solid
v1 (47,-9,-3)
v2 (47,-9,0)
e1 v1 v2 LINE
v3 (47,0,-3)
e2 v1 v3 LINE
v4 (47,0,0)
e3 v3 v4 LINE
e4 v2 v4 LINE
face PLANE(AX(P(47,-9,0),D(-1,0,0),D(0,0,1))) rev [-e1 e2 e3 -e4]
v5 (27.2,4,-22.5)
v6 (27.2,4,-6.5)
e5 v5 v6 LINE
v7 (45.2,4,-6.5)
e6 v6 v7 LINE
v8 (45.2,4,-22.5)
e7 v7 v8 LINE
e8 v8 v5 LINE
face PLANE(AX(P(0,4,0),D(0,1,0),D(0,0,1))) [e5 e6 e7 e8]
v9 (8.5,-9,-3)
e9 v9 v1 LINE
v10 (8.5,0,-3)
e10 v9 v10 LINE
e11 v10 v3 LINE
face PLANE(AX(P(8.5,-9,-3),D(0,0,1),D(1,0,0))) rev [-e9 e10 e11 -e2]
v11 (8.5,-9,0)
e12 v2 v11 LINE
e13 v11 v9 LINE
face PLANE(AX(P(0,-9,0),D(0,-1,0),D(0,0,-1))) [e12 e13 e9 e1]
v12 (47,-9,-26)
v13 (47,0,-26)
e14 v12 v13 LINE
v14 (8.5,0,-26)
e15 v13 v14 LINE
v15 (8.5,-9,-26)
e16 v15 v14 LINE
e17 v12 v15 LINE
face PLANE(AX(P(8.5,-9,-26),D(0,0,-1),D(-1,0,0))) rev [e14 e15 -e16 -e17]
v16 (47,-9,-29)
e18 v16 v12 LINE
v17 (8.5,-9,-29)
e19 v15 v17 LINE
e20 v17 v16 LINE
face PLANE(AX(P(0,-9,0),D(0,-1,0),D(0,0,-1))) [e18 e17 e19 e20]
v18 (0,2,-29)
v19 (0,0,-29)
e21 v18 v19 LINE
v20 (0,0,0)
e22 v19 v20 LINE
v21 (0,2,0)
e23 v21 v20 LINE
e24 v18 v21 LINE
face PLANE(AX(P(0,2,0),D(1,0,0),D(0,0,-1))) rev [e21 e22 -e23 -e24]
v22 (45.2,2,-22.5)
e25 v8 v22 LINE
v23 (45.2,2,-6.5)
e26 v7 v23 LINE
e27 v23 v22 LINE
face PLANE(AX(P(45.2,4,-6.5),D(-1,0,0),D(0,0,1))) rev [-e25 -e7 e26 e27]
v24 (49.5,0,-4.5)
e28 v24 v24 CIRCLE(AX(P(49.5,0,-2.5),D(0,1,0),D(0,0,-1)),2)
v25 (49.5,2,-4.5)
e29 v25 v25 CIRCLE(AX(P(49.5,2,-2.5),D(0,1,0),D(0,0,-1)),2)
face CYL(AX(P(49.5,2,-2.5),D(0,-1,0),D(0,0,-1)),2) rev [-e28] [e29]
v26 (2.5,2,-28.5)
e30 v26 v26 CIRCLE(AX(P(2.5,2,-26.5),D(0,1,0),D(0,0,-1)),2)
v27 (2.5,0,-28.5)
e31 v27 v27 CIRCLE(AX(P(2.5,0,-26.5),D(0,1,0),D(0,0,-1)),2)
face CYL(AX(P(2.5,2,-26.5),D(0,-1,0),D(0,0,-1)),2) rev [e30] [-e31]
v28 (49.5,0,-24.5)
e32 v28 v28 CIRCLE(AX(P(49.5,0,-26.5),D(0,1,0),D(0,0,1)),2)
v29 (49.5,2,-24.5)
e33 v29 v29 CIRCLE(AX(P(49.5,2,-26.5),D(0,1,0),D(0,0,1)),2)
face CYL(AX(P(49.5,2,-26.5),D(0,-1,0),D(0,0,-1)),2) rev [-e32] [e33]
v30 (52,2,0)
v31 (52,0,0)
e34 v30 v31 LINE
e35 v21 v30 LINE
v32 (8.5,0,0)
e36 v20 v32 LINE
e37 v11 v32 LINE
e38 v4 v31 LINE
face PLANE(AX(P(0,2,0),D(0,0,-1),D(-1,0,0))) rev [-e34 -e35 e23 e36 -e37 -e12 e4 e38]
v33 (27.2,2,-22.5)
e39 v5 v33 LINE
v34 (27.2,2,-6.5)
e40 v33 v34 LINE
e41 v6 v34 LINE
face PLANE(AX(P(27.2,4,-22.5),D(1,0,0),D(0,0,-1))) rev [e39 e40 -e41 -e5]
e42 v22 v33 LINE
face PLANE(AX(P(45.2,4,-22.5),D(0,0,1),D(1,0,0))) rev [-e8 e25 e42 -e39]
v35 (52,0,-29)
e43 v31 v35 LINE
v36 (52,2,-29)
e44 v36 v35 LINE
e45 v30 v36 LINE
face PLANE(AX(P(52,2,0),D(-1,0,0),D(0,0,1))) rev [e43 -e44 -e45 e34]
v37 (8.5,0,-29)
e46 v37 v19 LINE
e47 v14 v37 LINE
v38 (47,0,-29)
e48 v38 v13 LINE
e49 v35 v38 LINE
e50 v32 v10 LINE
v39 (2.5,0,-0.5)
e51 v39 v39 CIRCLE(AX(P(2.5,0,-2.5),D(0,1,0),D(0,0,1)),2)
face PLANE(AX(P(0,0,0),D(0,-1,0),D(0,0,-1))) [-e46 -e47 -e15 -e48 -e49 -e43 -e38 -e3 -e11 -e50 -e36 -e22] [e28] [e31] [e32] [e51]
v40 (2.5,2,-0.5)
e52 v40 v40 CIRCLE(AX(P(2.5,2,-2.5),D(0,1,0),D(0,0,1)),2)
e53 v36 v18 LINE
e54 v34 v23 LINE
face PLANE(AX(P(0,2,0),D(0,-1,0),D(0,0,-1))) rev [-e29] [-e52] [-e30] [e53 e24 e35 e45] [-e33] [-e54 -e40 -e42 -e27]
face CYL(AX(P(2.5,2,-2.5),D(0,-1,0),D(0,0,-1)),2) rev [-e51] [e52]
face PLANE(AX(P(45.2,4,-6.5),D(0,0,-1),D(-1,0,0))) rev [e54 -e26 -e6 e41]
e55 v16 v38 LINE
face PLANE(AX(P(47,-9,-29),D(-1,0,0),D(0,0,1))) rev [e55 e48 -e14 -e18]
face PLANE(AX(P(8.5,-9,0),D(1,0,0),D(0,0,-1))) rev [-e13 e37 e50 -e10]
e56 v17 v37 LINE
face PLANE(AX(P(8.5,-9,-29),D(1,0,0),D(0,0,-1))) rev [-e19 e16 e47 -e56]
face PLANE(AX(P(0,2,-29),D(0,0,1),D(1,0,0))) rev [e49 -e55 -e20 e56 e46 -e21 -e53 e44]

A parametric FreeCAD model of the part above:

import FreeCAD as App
import Part
import Sketcher

V = App.Vector


def add_polygon(sketch, points):
    """Adds a closed chain of lines whose ends are joined by coincident constraints."""
    first, n = sketch.GeometryCount, len(points)
    for a, b in zip(points, points[1:] + points[:1]):
        sketch.addGeometry(Part.LineSegment(App.Vector(*a, 0), App.Vector(*b, 0)), False)
    for i in range(n):
        sketch.addConstraint(Sketcher.Constraint("Coincident", first + i, 2, first + (i + 1) % n, 1))

doc = App.newDocument("Part")
body = doc.addObject("PartDesign::Body", "Body")

# Sketch on XZ plane
sketch1 = doc.addObject("Sketcher::SketchObject", "Sketch")
body.addObject(sketch1)
sketch1.AttachmentSupport = (doc.XZ_Plane, [""])
sketch1.MapMode = "FlatFace"
add_polygon(sketch1, [(0, -29), (0, 0), (52, 0), (52, -29)])  # lines 0-3
sketch1.addGeometry(Part.Circle(V(2.5, -2.5, 0), V(0, 0, 1), 2), False)  # 4
sketch1.addGeometry(Part.Circle(V(49.5, -2.5, 0), V(0, 0, 1), 2), False)  # 5
sketch1.addGeometry(Part.Circle(V(2.5, -26.5, 0), V(0, 0, 1), 2), False)  # 6
sketch1.addGeometry(Part.Circle(V(49.5, -26.5, 0), V(0, 0, 1), 2), False)  # 7
sketch1.addConstraint(Sketcher.Constraint("Vertical", 0))
sketch1.addConstraint(Sketcher.Constraint("Horizontal", 1))
sketch1.addConstraint(Sketcher.Constraint("Vertical", 2))
sketch1.addConstraint(Sketcher.Constraint("Horizontal", 3))
sketch1.addConstraint(Sketcher.Constraint("Coincident", 0, 2, -1, 1))
sketch1.addConstraint(Sketcher.Constraint("Equal", 4, 5))
sketch1.addConstraint(Sketcher.Constraint("Equal", 5, 6))
sketch1.addConstraint(Sketcher.Constraint("Equal", 6, 7))
sketch1.addConstraint(Sketcher.Constraint("Horizontal", 4, 3, 5, 3))
sketch1.addConstraint(Sketcher.Constraint("Horizontal", 6, 3, 7, 3))
sketch1.addConstraint(Sketcher.Constraint("Vertical", 4, 3, 6, 3))
sketch1.addConstraint(Sketcher.Constraint("Vertical", 5, 3, 7, 3))
sketch1.addConstraint(Sketcher.Constraint("Diameter", 4, 4.0))
sketch1.addConstraint(Sketcher.Constraint("DistanceX", 1, 1, 1, 2, 52.0))
sketch1.addConstraint(Sketcher.Constraint("DistanceY", 0, 1, 0, 2, 29.0))
sketch1.addConstraint(Sketcher.Constraint("DistanceX", 4, 3, 5, 3, 47.0))
sketch1.addConstraint(Sketcher.Constraint("DistanceY", 6, 3, 4, 3, 24.0))
sketch1.addConstraint(Sketcher.Constraint("DistanceX", -1, 1, 4, 3, 2.5))
sketch1.addConstraint(Sketcher.Constraint("DistanceY", 4, 3, -1, 1, 2.5))
pad1 = doc.addObject("PartDesign::Pad", "Pad")
body.addObject(pad1)
pad1.Profile = sketch1
pad1.Length = 2
pad1.Reversed = True

# Sketch on XZ plane
sketch2 = doc.addObject("Sketcher::SketchObject", "Sketch001")
body.addObject(sketch2)
sketch2.AttachmentSupport = (doc.XZ_Plane, [""])
sketch2.MapMode = "FlatFace"
sketch2.AttachmentOffset = App.Placement(V(0, 0, -2), App.Rotation())
add_polygon(sketch2, [(27.2, -22.5), (27.2, -6.5), (45.2, -6.5), (45.2, -22.5)])  # lines 0-3
sketch2.addConstraint(Sketcher.Constraint("Vertical", 0))
sketch2.addConstraint(Sketcher.Constraint("Horizontal", 1))
sketch2.addConstraint(Sketcher.Constraint("Vertical", 2))
sketch2.addConstraint(Sketcher.Constraint("Horizontal", 3))
sketch2.addConstraint(Sketcher.Constraint("DistanceX", 1, 1, 1, 2, 18.0))
sketch2.addConstraint(Sketcher.Constraint("DistanceY", 0, 1, 0, 2, 16.0))
sketch2.addConstraint(Sketcher.Constraint("DistanceX", -1, 1, 0, 2, 27.2))
sketch2.addConstraint(Sketcher.Constraint("DistanceY", 0, 2, -1, 1, 6.5))
pad2 = doc.addObject("PartDesign::Pad", "Pad001")
body.addObject(pad2)
pad2.Profile = sketch2
pad2.Length = 2
pad2.Reversed = True

# Sketch on XZ plane
sketch3 = doc.addObject("Sketcher::SketchObject", "Sketch002")
body.addObject(sketch3)
sketch3.AttachmentSupport = (doc.XZ_Plane, [""])
sketch3.MapMode = "FlatFace"
add_polygon(sketch3, [(8.5, 0), (8.5, -3), (47, -3), (47, 0)])  # lines 0-3
add_polygon(sketch3, [(8.5, -26), (8.5, -29), (47, -29), (47, -26)])  # lines 4-7
sketch3.addConstraint(Sketcher.Constraint("Vertical", 0))
sketch3.addConstraint(Sketcher.Constraint("Horizontal", 1))
sketch3.addConstraint(Sketcher.Constraint("Vertical", 2))
sketch3.addConstraint(Sketcher.Constraint("Horizontal", 3))
sketch3.addConstraint(Sketcher.Constraint("Vertical", 4))
sketch3.addConstraint(Sketcher.Constraint("Horizontal", 5))
sketch3.addConstraint(Sketcher.Constraint("Vertical", 6))
sketch3.addConstraint(Sketcher.Constraint("Horizontal", 7))
sketch3.addConstraint(Sketcher.Constraint("PointOnObject", 2, 2, -1))
sketch3.addConstraint(Sketcher.Constraint("Vertical", 3, 2, 4, 2))
sketch3.addConstraint(Sketcher.Constraint("Vertical", 2, 2, 5, 2))
sketch3.addConstraint(Sketcher.Constraint("Equal", 2, 4))
sketch3.addConstraint(Sketcher.Constraint("DistanceY", 0, 2, 0, 1, 3.0))
sketch3.addConstraint(Sketcher.Constraint("DistanceX", 1, 1, 1, 2, 38.5))
sketch3.addConstraint(Sketcher.Constraint("DistanceX", -1, 1, 1, 2, 47.0))
sketch3.addConstraint(Sketcher.Constraint("DistanceY", 4, 2, -1, 1, 29.0))
pad3 = doc.addObject("PartDesign::Pad", "Pad002")
body.addObject(pad3)
pad3.Profile = sketch3
pad3.Length = 9

doc.recompute()
